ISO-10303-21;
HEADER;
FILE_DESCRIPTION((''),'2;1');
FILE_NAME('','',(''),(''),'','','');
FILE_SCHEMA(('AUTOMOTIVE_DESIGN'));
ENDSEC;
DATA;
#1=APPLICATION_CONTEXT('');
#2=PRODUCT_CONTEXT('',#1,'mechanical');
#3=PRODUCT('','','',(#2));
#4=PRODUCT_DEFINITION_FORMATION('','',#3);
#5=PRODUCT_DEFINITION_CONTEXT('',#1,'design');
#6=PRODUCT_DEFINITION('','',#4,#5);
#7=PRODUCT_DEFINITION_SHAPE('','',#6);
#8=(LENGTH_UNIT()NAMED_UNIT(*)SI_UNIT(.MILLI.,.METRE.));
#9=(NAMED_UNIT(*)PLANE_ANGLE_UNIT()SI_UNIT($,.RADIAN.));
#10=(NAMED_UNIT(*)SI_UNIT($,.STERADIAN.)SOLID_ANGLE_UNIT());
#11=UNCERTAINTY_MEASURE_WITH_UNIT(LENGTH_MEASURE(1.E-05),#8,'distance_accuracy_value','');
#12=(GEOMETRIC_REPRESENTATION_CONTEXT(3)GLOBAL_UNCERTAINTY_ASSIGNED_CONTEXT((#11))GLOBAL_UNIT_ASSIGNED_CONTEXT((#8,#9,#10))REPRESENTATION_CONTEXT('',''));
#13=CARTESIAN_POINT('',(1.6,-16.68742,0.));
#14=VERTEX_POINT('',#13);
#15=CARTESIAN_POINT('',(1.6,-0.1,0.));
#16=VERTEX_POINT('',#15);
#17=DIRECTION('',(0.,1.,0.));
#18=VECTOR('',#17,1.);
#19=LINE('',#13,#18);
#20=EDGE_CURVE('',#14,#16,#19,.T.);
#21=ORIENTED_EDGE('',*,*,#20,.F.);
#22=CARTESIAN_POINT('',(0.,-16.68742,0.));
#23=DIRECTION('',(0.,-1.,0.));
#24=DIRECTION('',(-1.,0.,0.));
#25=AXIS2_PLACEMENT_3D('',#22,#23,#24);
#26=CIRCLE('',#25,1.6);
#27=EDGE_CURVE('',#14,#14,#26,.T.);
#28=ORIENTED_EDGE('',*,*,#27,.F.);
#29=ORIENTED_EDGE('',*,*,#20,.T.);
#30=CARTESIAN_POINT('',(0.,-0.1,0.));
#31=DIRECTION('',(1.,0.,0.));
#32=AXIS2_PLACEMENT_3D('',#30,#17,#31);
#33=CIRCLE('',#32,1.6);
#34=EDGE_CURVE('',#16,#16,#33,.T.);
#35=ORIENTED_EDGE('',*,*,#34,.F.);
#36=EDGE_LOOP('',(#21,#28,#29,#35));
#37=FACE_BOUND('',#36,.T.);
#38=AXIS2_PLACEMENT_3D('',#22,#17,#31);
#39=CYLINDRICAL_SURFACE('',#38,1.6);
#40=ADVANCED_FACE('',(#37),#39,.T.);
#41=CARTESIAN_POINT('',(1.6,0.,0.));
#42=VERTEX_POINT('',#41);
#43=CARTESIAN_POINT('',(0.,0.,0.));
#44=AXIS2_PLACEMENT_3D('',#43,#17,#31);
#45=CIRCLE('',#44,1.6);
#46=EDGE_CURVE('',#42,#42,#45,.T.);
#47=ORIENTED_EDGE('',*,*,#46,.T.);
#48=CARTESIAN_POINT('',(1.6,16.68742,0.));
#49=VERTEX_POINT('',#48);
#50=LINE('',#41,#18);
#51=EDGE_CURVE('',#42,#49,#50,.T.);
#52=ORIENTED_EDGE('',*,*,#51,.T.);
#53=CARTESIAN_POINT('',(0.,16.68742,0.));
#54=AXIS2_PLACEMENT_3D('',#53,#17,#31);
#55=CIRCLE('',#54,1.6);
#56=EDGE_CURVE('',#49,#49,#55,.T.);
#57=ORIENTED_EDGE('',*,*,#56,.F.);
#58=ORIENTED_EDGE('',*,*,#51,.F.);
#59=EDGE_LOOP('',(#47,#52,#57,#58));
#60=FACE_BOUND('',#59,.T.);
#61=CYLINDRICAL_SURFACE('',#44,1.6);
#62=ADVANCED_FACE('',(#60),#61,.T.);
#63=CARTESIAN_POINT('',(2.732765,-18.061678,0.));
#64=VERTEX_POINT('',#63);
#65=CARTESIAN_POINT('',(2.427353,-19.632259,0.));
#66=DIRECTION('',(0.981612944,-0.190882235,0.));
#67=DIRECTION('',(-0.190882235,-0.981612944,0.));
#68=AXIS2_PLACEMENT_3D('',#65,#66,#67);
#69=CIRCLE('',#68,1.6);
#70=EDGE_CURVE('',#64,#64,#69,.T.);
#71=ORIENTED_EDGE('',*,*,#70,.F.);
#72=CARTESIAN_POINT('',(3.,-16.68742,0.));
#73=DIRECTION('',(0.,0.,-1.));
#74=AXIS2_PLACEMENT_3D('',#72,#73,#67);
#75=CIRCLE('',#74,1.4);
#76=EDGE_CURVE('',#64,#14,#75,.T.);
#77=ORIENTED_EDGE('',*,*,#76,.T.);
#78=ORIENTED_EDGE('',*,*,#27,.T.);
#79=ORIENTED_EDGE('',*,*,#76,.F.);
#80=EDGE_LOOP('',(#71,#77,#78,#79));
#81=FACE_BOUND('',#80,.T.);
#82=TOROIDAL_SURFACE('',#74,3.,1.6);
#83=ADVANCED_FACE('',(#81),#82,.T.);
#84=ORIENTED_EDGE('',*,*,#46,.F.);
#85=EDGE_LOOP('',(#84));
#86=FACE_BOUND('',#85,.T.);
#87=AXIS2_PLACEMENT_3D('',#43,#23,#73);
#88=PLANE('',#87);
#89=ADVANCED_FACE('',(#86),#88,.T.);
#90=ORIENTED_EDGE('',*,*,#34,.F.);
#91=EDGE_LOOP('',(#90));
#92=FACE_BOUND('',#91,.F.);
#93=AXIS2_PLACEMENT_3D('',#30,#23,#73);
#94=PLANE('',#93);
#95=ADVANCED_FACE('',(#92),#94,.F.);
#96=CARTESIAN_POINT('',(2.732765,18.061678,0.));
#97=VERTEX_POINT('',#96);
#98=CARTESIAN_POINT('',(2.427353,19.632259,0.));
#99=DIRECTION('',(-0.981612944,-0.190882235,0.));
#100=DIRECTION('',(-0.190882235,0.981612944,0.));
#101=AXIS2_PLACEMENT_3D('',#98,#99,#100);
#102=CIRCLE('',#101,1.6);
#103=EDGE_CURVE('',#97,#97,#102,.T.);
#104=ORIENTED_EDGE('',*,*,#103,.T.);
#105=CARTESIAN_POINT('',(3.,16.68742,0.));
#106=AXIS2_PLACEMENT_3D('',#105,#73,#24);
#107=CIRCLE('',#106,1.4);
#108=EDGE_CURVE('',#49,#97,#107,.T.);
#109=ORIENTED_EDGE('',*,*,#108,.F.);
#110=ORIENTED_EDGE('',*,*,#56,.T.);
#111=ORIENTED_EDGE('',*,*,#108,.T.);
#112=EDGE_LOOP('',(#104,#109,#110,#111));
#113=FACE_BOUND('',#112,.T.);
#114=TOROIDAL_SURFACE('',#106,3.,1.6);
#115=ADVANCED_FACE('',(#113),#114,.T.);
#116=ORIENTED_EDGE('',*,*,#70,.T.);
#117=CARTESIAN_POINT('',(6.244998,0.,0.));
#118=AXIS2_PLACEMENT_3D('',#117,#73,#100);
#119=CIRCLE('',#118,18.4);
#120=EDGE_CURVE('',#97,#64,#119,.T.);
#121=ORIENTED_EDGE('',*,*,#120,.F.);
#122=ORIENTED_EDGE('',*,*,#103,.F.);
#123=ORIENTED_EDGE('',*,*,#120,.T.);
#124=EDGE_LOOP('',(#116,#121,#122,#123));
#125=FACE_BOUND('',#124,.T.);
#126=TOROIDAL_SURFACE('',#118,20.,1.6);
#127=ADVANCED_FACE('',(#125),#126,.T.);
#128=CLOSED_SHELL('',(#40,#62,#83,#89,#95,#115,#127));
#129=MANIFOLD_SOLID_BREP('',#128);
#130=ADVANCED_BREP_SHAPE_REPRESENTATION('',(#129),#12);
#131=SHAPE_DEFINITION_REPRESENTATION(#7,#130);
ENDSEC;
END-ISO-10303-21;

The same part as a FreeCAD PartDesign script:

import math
import FreeCAD as App
import Part
import Sketcher

V = App.Vector

doc = App.newDocument("Part")
params = doc.addObject("Spreadsheet::Sheet", "Params")
for row, (alias, value) in enumerate([
    ("sketch1_diameter", "3.2 mm"),
    ("sketch2_radius", "3 mm"),
    ("sketch2_radius2", "20 mm"),
], start=1):
    params.set(f"A{row}", alias)
    params.set(f"B{row}", "=" + value)
    params.setAlias(f"B{row}", alias)

body = doc.addObject("PartDesign::Body", "Body")

# Sketch on XZ plane
sketch1 = body.newObject("Sketcher::SketchObject", "Sketch")
sketch1.AttachmentSupport = (doc.getObject("XZ_Plane"), [""])
sketch1.MapMode = "FlatFace"
sketch1.addGeometry(Part.Circle(V(0, 0, 0), V(0, 0, 1), 1.6), False)
sketch1.addConstraint(Sketcher.Constraint("Coincident", 0, 3, -1, 1))
sketch1.addConstraint(Sketcher.Constraint("Diameter", 0, 3.2))
sketch1.setExpression("Constraints[1]", "Params.sketch1_diameter")

# Sketch on XY plane
sketch2 = body.newObject("Sketcher::SketchObject", "Sketch001")
sketch2.AttachmentSupport = (doc.getObject("XY_Plane"), [""])
sketch2.MapMode = "FlatFace"
sketch2.addGeometry(Part.LineSegment(V(0, 0, 0), V(0, 16.7, 0)), False)
sketch2.addGeometry(Part.ArcOfCircle(Part.Circle(V(3, 16.7, 0), V(0, 0, 1), 3), math.radians(101), math.radians(180)), False)
sketch2.addGeometry(Part.ArcOfCircle(Part.Circle(V(6.2, 0, 0), V(0, 0, 1), 20), math.radians(-101), math.radians(101)), False)
sketch2.addGeometry(Part.ArcOfCircle(Part.Circle(V(3, -16.7, 0), V(0, 0, 1), 3), math.radians(180), math.radians(259)), False)
sketch2.addGeometry(Part.LineSegment(V(0, -16.7, 0), V(0, -0.1, 0)), False)
sketch2.addConstraint(Sketcher.Constraint("Tangent", 0, 2, 1, 2))
sketch2.addConstraint(Sketcher.Constraint("Tangent", 1, 1, 2, 2))
sketch2.addConstraint(Sketcher.Constraint("Tangent", 2, 1, 3, 2))
sketch2.addConstraint(Sketcher.Constraint("Tangent", 3, 1, 4, 1))
sketch2.addConstraint(Sketcher.Constraint("Vertical", 0))
sketch2.addConstraint(Sketcher.Constraint("Vertical", 4))
sketch2.addConstraint(Sketcher.Constraint("Coincident", 0, 1, -1, 1))
sketch2.addConstraint(Sketcher.Constraint("Equal", 1, 3))
sketch2.addConstraint(Sketcher.Constraint("Symmetric", 0, 2, 3, 1, -1, 1))
sketch2.addConstraint(Sketcher.Constraint("Radius", 1, 3.0))
sketch2.addConstraint(Sketcher.Constraint("Radius", 2, 20.0))
sketch2.addConstraint(Sketcher.Constraint("DistanceY", 4, 2, -1, 1, 0.1))
sketch2.addConstraint(Sketcher.Constraint("DistanceY", 0, 1, 0, 2, 16.68742))
sketch2.setExpression("Constraints[9]", "Params.sketch2_radius")
sketch2.setExpression("Constraints[10]", "Params.sketch2_radius2")
doc.recompute()

additivepipe = body.newObject("PartDesign::AdditivePipe", "AdditivePipe")
additivepipe.Profile = sketch1
additivepipe.Spine = (sketch2, ["Edge1", "Edge2", "Edge3", "Edge4", "Edge5"])

doc.recompute()
